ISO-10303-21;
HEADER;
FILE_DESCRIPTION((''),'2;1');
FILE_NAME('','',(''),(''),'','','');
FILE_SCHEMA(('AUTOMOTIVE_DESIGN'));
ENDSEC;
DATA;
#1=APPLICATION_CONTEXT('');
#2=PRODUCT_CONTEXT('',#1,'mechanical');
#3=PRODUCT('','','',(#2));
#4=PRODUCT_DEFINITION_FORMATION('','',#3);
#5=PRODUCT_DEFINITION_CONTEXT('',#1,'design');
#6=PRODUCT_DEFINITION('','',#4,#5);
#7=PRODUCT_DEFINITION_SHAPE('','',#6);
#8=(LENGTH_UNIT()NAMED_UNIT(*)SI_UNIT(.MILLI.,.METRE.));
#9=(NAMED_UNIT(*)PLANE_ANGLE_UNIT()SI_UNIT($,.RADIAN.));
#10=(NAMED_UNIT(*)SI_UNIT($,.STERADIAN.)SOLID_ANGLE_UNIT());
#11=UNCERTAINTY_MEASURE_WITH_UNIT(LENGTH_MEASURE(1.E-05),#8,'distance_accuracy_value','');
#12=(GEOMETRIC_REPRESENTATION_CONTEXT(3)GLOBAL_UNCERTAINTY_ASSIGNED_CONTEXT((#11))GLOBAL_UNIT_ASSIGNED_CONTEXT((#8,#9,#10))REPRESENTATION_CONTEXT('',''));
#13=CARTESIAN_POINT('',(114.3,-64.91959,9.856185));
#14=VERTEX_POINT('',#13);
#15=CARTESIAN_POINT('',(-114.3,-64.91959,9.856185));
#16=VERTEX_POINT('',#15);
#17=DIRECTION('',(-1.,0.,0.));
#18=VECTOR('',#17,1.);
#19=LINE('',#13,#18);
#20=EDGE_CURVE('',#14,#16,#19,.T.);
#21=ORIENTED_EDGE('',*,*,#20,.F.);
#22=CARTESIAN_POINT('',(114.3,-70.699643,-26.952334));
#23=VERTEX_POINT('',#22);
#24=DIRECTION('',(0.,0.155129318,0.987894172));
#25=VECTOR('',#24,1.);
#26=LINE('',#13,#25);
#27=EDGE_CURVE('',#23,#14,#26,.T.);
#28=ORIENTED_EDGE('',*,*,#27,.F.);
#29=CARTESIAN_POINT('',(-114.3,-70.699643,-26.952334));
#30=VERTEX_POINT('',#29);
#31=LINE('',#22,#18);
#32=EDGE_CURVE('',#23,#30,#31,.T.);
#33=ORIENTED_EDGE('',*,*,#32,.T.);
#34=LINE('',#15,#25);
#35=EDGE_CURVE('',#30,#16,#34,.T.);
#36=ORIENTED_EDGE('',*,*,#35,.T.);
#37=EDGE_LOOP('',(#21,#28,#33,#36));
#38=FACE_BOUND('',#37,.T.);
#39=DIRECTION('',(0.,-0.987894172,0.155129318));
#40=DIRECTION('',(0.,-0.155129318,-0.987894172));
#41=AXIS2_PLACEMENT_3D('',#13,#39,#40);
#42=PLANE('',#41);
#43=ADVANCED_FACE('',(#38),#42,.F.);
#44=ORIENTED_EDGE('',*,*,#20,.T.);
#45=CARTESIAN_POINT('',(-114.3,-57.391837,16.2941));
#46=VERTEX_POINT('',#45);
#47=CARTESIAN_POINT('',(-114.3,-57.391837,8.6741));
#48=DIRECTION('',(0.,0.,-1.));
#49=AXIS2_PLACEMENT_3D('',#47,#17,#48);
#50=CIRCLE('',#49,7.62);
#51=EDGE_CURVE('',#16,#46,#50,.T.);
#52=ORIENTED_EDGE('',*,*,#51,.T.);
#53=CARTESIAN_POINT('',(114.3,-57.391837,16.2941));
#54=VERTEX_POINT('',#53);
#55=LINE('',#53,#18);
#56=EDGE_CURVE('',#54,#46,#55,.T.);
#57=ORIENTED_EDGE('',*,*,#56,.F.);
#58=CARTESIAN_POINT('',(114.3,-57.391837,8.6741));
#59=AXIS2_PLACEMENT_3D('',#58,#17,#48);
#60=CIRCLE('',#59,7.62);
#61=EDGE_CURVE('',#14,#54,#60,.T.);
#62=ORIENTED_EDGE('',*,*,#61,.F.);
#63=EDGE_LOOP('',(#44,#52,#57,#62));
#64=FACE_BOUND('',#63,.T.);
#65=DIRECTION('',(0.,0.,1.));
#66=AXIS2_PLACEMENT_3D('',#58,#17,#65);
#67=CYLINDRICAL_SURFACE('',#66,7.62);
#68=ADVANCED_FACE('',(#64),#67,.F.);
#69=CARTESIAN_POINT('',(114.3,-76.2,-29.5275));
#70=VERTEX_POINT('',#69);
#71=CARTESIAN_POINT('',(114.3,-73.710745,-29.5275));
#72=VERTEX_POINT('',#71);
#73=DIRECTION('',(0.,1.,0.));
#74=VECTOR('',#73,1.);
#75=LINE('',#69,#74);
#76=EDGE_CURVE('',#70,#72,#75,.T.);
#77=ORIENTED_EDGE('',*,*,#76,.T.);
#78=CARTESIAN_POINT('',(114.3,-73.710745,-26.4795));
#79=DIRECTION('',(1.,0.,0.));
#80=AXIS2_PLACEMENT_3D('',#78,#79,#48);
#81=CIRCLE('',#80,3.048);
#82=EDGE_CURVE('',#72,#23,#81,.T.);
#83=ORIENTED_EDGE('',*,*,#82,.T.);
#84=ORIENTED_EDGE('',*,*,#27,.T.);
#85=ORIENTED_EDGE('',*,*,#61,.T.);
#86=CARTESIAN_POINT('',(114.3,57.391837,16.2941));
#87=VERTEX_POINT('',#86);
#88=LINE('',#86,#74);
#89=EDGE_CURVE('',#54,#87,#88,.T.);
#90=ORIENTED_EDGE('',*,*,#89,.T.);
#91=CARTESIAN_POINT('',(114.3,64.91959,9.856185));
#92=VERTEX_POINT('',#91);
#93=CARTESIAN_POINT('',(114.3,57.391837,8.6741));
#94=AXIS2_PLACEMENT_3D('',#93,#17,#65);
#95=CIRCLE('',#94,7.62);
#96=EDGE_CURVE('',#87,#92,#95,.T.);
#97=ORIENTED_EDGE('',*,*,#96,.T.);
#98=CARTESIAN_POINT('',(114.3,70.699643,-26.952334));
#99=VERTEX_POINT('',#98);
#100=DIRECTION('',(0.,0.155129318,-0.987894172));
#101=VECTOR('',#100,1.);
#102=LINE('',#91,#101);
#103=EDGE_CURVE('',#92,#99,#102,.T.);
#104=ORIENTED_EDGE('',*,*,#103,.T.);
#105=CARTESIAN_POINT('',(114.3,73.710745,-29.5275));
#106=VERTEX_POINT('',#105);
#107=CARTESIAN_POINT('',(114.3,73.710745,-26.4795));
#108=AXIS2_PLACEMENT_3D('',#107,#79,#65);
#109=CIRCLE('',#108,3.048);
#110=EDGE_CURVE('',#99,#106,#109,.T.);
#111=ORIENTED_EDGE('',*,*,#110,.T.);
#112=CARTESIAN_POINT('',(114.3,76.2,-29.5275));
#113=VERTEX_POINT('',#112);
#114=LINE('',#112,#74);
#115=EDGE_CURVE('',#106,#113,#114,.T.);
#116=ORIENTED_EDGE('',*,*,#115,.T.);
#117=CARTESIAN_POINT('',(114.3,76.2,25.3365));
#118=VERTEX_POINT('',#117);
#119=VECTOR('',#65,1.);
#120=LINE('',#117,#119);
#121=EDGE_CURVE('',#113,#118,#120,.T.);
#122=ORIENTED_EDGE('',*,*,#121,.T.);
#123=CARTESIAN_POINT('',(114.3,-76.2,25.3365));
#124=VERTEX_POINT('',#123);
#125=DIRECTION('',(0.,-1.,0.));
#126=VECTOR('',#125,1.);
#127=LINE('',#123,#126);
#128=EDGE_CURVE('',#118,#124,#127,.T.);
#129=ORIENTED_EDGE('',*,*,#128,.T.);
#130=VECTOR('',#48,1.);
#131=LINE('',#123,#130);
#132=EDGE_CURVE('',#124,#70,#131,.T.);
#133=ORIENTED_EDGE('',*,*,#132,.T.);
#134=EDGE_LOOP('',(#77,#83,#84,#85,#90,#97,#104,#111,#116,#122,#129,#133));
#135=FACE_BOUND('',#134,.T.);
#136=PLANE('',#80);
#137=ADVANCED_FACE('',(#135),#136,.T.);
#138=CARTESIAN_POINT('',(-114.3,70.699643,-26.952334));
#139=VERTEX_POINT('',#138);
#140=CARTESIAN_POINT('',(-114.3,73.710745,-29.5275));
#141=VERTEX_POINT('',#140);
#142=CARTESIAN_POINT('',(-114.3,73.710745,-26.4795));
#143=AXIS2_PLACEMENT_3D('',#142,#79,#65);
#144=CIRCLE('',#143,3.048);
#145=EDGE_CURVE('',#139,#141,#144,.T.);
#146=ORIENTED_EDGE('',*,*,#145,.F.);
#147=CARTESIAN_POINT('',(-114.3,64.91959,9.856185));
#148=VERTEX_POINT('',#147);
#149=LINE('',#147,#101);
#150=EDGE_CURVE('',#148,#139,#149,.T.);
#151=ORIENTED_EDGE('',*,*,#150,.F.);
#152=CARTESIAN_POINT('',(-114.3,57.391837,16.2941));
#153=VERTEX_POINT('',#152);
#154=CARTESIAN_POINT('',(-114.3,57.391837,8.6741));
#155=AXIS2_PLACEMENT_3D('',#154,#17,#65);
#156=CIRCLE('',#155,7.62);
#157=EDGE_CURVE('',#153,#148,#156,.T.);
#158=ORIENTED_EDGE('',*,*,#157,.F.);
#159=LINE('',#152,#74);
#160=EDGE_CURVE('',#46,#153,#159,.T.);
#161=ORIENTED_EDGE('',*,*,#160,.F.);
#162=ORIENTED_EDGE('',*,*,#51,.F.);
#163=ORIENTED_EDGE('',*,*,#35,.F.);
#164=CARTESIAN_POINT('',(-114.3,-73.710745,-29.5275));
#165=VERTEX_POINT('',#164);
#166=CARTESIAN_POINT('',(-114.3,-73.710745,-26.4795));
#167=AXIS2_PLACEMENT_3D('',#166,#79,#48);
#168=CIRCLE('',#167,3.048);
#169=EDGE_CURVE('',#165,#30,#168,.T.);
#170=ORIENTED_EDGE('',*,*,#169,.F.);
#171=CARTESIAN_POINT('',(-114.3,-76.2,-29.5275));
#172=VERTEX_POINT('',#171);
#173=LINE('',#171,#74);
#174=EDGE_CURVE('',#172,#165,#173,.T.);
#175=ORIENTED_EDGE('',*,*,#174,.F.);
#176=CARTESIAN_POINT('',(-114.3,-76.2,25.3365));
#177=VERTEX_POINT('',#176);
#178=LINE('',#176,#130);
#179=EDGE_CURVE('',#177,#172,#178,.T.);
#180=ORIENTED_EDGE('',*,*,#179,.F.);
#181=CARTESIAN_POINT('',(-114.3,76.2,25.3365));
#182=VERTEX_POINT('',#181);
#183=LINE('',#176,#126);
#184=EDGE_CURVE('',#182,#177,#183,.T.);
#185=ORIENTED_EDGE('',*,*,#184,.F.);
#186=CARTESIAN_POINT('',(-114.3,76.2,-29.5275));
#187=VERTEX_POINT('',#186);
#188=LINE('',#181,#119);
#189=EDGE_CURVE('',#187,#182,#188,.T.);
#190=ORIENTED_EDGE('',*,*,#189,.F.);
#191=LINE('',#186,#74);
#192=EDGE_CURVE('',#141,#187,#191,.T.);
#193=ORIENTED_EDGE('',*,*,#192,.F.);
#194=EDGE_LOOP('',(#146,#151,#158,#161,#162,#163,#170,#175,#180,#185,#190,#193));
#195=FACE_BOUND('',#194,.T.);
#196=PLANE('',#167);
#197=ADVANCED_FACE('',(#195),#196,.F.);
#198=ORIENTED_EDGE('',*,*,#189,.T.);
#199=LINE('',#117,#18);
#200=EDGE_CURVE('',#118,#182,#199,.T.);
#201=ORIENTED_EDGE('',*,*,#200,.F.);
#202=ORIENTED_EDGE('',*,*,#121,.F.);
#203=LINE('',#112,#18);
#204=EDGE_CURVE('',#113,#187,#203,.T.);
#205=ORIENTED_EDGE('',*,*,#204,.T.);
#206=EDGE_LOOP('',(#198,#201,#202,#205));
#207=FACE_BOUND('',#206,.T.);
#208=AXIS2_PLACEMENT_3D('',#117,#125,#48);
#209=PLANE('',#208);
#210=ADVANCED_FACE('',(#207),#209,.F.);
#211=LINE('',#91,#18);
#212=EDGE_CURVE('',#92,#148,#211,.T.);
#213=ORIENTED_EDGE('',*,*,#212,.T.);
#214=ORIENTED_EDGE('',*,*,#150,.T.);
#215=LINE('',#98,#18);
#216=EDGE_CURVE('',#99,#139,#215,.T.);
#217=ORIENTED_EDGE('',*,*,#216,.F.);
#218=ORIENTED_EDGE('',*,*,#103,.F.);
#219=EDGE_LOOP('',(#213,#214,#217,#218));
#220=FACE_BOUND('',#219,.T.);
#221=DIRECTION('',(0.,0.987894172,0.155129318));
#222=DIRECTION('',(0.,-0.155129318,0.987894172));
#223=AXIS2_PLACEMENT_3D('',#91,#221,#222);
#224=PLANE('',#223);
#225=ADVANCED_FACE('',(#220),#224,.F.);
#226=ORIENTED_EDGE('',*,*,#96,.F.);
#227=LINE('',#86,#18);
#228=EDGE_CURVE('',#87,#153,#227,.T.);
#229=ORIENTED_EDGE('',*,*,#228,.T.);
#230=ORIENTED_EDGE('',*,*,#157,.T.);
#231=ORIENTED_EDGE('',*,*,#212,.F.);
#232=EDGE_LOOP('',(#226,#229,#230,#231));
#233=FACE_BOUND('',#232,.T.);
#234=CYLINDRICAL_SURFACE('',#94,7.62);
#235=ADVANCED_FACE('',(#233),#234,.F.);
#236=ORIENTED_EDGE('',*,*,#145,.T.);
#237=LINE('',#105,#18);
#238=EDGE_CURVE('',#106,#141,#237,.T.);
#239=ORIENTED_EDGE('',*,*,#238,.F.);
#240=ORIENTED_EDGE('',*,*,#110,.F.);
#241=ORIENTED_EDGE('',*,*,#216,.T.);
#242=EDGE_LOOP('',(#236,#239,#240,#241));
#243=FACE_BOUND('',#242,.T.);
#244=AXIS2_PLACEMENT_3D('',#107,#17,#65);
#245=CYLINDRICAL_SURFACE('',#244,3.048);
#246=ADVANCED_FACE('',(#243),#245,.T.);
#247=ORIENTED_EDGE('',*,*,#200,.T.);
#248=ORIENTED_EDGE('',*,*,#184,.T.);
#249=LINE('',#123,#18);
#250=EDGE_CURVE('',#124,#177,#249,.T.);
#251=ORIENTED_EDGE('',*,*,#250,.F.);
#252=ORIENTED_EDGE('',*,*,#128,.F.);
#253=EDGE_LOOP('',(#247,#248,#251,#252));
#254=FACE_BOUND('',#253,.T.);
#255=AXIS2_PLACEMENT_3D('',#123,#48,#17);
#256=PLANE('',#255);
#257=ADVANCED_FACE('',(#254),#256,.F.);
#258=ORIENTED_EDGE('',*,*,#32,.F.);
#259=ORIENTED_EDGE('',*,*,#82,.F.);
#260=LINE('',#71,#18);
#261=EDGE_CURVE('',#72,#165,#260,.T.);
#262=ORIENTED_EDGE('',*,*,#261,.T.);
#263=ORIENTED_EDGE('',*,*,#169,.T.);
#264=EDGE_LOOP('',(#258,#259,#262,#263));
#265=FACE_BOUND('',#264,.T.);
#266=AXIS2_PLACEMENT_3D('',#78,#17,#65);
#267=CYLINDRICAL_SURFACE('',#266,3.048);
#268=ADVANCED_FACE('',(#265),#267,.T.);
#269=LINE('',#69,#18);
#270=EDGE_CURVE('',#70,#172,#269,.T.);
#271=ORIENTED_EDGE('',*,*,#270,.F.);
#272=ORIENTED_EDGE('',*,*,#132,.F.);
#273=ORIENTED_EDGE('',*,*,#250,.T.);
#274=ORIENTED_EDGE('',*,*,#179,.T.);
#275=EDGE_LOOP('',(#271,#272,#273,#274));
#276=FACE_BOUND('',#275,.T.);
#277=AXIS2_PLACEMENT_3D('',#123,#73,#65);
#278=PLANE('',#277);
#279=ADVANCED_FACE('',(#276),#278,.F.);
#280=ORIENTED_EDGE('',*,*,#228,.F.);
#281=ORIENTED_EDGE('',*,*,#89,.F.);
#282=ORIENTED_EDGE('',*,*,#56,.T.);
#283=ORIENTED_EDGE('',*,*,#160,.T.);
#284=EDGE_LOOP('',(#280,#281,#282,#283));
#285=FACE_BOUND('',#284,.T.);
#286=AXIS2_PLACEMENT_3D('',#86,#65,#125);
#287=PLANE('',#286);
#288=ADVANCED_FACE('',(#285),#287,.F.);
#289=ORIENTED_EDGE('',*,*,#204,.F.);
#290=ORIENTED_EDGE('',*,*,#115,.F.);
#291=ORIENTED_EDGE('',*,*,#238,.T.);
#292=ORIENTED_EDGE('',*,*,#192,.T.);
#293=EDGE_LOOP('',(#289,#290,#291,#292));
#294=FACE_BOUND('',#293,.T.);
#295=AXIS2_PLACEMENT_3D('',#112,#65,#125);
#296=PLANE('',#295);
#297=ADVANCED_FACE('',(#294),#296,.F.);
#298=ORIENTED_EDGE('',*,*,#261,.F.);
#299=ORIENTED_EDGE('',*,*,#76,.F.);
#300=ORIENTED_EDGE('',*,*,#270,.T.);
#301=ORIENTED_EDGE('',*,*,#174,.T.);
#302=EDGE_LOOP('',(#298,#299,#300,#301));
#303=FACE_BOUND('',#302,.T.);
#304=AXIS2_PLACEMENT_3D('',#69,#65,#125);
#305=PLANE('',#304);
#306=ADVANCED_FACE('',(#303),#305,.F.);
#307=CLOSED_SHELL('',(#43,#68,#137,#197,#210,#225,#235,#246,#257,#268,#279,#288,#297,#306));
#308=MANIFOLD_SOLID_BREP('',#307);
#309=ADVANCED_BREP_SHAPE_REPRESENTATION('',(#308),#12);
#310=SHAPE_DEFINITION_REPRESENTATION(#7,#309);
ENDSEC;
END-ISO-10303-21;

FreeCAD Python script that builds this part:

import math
import FreeCAD as App
import Part
import Sketcher

V = App.Vector
Q = App.Units.Quantity

doc = App.newDocument("Part")
body = doc.addObject("PartDesign::Body", "Body")

sketch1 = doc.addObject("Sketcher::SketchObject", "Sketch")
body.addObject(sketch1)
sketch1.AttachmentSupport = (doc.YZ_Plane, [""])
sketch1.MapMode = "FlatFace"
sketch1.addGeometry([
    Part.LineSegment(V(76.2, 25.3365, 0), V(-76.2, 25.3365, 0)),
    Part.LineSegment(V(-76.2, 25.3365, 0), V(-76.2, -29.5275, 0)),
    Part.LineSegment(V(-76.2, -29.5275, 0), V(-73.710745, -29.5275, 0)),
    Part.ArcOfCircle(Part.Circle(V(-73.710745, -26.4795, 0), V(0, 0, 1), 3.048), math.radians(-90), math.radians(-8.924296)),
    Part.LineSegment(V(-70.699643, -26.952334, 0), V(-64.91959, 9.856185, 0)),
    Part.ArcOfCircle(Part.Circle(V(-57.391837, 8.6741, 0), V(0, 0, 1), 7.62), math.radians(90), math.radians(171.075704)),
    Part.LineSegment(V(-57.391837, 16.2941, 0), V(57.391837, 16.2941, 0)),
    Part.ArcOfCircle(Part.Circle(V(57.391837, 8.6741, 0), V(0, 0, 1), 7.62), math.radians(8.924296), math.radians(90)),
    Part.LineSegment(V(64.91959, 9.856185, 0), V(70.699643, -26.952334, 0)),
    Part.ArcOfCircle(Part.Circle(V(73.710745, -26.4795, 0), V(0, 0, 1), 3.048), math.radians(-171.075704), math.radians(-90)),
    Part.LineSegment(V(73.710745, -29.5275, 0), V(76.2, -29.5275, 0)),
    Part.LineSegment(V(76.2, -29.5275, 0), V(76.2, 25.3365, 0)),
], False)
sketch1.addConstraint([
    Sketcher.Constraint("Coincident", 0, 2, 1, 1),
    Sketcher.Constraint("Coincident", 1, 2, 2, 1),
    Sketcher.Constraint("Coincident", 2, 2, 3, 1),
    Sketcher.Constraint("Coincident", 3, 2, 4, 1),
    Sketcher.Constraint("Coincident", 4, 2, 5, 2),
    Sketcher.Constraint("Coincident", 5, 1, 6, 1),
    Sketcher.Constraint("Coincident", 6, 2, 7, 2),
    Sketcher.Constraint("Coincident", 7, 1, 8, 1),
    Sketcher.Constraint("Coincident", 8, 2, 9, 1),
    Sketcher.Constraint("Coincident", 9, 2, 10, 1),
    Sketcher.Constraint("Coincident", 10, 2, 11, 1),
    Sketcher.Constraint("Coincident", 11, 2, 0, 1),
    Sketcher.Constraint("Horizontal", 0),
    Sketcher.Constraint("Vertical", 1),
    Sketcher.Constraint("Horizontal", 2),
    Sketcher.Constraint("Horizontal", 6),
    Sketcher.Constraint("Horizontal", 10),
    Sketcher.Constraint("Vertical", 11),
    Sketcher.Constraint("Radius", 5, Q("0.3 in")),
    Sketcher.Constraint("Radius", 7, Q("0.3 in")),
    Sketcher.Constraint("DistanceX", 0, 2, 0, 1, Q("6 in")),
    Sketcher.Constraint("Radius", 3, Q("0.12 in")),
    Sketcher.Constraint("Radius", 9, Q("0.12 in")),
    Sketcher.Constraint("DistanceX", 0, 2, -1, 1, Q("3 in")),
    Sketcher.Constraint("DistanceY", 1, 2, 1, 1, Q("2.16 in")),
    Sketcher.Constraint("DistanceY", 11, 1, 11, 2, Q("2.16 in")),
    Sketcher.Constraint("DistanceY", 3, 3, 5, 3, Q("1.384 in")),
    Sketcher.Constraint("DistanceY", 3, 3, -1, 1, Q("1.0425 in")),
    Sketcher.Constraint("DistanceX", 3, 3, 3, 2, 3.011101),
    Sketcher.Constraint("DistanceX", 2, 2, 3, 2, 3.011101),
    Sketcher.Constraint("DistanceX", 8, 2, 9, 3, 3.011101),
    Sketcher.Constraint("DistanceX", 8, 2, 9, 2, 3.011101),
    Sketcher.Constraint("DistanceX", 2, 1, 2, 2, 2.489255),
    Sketcher.Constraint("DistanceX", 6, 1, 6, 2, 114.783673),
    Sketcher.Constraint("DistanceX", 10, 1, 10, 2, 2.489255),
    Sketcher.Constraint("DistanceX", 4, 2, -1, 1, 64.91959),
    Sketcher.Constraint("DistanceX", -1, 1, 7, 1, 64.91959),
    Sketcher.Constraint("DistanceX", 3, 3, 7, 3, 131.102581),
    Sketcher.Constraint("DistanceX", 5, 3, 9, 3, 131.102581),
    Sketcher.Constraint("DistanceX", 5, 1, -1, 1, 57.391837),
])
pad1 = doc.addObject("PartDesign::Pad", "Pad")
body.addObject(pad1)
pad1.Profile = sketch1
pad1.Length = Q("9 in")
pad1.Midplane = True

doc.recompute()
